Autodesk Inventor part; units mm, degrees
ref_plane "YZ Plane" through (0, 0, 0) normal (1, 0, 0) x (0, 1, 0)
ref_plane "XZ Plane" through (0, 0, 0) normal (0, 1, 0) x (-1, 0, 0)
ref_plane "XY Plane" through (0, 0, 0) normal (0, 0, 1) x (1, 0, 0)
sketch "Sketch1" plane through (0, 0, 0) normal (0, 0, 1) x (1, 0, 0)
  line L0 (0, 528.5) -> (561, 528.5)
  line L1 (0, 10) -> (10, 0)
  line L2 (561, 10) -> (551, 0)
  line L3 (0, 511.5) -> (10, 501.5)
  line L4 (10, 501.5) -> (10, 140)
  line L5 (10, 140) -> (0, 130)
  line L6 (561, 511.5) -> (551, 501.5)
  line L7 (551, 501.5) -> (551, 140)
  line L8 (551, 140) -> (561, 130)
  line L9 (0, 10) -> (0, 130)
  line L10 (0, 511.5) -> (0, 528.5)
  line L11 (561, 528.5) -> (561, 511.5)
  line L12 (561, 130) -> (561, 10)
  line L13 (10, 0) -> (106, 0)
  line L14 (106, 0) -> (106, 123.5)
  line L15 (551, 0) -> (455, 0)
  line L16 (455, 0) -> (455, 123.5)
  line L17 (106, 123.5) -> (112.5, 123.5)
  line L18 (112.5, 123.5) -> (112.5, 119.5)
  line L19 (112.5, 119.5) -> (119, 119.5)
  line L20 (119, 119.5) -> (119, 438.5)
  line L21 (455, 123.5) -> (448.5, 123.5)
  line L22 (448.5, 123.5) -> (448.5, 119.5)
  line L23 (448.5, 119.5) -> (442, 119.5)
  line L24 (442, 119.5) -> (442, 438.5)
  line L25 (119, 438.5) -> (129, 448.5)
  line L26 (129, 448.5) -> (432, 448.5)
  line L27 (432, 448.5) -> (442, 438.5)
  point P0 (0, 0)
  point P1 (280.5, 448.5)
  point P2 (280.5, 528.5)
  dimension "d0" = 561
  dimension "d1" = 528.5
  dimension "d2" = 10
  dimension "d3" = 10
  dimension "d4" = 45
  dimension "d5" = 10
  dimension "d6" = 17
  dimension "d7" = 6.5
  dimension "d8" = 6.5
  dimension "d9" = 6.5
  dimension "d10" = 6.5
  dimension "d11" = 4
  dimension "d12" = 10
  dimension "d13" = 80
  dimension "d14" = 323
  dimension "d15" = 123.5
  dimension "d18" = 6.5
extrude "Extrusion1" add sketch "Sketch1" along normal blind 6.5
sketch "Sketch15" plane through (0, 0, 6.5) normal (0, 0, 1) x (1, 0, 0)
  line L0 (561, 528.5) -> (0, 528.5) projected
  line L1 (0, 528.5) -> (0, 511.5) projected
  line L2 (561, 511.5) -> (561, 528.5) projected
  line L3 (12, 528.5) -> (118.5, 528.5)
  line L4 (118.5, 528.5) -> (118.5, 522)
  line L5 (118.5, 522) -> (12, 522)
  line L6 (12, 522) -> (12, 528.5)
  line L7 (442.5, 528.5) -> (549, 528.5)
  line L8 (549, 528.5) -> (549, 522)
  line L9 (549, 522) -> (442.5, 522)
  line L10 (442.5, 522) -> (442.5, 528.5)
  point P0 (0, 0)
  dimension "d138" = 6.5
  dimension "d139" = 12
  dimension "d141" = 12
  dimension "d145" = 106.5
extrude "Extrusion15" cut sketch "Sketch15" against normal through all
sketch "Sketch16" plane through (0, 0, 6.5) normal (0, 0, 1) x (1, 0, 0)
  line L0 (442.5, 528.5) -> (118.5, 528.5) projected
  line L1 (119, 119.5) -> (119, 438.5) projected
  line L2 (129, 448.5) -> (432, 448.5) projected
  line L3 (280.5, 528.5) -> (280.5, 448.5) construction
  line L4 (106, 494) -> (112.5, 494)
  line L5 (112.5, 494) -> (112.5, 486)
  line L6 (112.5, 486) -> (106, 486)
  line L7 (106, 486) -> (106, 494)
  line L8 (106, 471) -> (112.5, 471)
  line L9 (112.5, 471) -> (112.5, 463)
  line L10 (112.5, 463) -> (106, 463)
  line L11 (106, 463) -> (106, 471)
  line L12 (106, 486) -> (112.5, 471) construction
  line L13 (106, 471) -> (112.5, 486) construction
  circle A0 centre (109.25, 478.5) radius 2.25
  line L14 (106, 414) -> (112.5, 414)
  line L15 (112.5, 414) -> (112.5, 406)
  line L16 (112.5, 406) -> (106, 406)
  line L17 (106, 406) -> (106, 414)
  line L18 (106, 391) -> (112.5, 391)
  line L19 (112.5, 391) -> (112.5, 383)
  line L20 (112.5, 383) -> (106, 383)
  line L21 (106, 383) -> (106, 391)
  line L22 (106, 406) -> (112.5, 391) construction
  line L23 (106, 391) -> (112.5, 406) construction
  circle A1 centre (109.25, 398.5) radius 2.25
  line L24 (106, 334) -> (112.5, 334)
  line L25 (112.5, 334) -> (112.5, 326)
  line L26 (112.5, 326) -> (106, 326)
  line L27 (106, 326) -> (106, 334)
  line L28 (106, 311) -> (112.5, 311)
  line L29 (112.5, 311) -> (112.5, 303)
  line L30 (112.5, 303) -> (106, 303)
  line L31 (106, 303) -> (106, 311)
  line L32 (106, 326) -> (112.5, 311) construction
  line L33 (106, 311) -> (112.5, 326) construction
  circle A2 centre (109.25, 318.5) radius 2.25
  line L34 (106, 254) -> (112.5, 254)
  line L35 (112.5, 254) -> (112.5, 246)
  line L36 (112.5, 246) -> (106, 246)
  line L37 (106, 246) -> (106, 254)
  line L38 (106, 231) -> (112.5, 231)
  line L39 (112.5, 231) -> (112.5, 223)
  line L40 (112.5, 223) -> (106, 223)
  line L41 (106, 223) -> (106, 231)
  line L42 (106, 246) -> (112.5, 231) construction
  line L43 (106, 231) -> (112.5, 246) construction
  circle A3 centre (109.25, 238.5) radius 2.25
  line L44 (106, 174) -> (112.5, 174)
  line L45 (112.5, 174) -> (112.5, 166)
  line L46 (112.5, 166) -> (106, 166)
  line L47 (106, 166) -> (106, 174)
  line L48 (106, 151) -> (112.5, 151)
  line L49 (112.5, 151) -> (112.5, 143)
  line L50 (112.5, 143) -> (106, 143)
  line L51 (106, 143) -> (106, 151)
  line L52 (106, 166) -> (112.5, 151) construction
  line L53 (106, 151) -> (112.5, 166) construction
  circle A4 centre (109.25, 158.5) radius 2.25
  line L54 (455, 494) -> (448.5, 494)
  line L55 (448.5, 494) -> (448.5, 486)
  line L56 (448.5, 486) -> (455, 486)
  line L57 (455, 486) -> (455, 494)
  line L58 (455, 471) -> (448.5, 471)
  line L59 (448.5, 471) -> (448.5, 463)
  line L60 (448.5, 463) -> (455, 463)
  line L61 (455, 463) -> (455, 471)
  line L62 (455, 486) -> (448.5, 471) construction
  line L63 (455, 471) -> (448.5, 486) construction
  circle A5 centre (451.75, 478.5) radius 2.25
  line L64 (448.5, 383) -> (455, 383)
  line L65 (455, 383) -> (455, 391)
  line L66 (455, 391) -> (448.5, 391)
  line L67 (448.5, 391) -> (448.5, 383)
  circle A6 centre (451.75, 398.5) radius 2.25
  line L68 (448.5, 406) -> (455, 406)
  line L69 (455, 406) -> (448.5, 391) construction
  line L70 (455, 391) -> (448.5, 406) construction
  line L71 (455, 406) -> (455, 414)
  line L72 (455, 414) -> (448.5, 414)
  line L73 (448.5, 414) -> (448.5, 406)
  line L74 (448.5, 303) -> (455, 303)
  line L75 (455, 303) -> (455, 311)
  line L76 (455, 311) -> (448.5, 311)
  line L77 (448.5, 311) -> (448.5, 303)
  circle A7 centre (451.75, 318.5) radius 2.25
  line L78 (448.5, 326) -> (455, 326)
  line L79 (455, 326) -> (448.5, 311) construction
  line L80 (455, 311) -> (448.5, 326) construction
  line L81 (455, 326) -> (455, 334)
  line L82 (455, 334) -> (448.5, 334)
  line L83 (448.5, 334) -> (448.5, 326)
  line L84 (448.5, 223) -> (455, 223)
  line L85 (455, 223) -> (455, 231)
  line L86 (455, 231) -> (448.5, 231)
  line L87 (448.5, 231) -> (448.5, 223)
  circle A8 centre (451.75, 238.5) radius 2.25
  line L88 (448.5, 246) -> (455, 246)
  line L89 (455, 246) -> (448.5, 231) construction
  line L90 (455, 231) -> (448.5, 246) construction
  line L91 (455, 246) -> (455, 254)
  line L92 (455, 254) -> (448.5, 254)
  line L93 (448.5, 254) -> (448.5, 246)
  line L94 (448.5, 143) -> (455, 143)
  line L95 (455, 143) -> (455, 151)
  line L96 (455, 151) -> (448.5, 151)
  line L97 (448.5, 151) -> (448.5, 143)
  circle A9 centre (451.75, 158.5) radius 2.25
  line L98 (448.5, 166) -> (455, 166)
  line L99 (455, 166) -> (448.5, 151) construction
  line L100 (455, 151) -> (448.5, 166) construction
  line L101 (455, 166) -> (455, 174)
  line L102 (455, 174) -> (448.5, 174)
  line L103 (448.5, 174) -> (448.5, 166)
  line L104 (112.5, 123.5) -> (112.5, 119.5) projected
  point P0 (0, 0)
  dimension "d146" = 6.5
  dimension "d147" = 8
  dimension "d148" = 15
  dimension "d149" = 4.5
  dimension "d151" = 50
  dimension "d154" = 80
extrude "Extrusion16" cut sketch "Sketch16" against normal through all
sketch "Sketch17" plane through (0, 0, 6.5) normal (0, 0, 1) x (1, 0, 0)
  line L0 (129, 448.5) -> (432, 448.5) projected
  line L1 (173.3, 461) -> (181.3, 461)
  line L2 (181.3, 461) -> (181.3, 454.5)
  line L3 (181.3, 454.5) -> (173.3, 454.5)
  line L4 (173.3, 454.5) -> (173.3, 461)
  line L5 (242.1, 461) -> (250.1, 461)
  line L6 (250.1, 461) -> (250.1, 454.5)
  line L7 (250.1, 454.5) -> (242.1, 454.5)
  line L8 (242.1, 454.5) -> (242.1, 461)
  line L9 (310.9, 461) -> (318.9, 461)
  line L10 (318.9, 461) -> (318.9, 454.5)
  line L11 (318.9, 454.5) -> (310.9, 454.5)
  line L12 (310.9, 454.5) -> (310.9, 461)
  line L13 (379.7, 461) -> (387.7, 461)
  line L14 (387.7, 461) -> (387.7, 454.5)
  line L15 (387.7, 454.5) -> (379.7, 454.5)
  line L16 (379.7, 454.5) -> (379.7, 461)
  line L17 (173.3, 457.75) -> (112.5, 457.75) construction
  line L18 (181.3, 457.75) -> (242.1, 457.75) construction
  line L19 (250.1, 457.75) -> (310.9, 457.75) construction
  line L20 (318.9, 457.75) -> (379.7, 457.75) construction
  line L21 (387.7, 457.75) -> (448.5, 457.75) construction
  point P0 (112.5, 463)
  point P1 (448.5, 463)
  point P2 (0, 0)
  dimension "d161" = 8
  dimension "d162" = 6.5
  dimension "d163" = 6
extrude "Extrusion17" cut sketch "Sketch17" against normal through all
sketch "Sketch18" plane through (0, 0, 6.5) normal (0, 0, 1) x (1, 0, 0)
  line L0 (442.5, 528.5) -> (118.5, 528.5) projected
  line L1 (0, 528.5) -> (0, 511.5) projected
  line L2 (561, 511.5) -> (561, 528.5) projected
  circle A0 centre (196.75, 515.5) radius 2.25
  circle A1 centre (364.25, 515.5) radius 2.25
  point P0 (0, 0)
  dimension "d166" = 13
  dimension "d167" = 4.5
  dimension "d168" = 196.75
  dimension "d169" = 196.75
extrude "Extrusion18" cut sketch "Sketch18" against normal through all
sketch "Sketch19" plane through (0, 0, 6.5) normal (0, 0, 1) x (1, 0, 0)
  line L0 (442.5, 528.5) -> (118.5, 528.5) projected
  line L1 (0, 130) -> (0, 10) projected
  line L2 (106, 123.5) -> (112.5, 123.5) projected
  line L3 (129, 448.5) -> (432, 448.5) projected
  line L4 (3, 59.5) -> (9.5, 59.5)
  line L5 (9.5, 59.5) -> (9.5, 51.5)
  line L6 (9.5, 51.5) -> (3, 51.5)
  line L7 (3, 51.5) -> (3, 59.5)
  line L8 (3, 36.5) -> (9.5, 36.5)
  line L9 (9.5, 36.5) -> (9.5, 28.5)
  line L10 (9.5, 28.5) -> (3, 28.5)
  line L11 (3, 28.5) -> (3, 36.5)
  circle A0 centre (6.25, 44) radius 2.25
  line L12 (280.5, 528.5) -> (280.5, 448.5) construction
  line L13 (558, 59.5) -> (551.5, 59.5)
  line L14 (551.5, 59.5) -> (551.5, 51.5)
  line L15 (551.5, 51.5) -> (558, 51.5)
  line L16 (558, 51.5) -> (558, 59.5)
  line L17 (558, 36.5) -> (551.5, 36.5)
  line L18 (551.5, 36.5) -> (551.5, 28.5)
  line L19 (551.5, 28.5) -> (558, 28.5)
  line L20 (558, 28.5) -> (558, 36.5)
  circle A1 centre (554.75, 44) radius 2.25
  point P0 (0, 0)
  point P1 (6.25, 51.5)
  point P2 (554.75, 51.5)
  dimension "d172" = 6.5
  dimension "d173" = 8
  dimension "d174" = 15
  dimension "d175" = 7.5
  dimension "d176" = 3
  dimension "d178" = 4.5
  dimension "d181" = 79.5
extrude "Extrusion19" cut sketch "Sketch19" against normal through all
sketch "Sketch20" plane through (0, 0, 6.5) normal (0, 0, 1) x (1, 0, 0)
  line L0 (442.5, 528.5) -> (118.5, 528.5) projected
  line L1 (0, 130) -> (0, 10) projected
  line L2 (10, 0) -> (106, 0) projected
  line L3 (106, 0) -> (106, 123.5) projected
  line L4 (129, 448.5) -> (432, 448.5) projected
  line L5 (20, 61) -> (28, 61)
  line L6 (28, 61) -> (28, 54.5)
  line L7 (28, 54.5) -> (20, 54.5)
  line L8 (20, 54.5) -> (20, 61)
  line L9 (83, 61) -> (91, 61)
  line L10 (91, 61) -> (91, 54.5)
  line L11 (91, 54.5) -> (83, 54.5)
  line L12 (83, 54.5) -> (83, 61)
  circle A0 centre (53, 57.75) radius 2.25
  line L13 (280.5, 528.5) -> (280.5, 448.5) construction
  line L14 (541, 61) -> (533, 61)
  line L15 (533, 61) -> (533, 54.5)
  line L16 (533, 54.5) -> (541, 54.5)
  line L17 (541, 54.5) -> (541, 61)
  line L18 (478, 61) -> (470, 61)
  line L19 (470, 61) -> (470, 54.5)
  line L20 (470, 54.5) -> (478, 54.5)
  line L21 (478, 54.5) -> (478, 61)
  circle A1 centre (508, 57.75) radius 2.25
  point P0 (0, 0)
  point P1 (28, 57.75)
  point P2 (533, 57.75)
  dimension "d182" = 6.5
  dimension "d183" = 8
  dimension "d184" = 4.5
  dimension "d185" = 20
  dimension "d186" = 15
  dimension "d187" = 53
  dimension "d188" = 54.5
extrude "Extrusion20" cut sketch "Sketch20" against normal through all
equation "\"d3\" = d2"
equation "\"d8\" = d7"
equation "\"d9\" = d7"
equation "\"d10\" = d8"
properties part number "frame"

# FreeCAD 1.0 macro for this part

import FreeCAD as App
import Part
import Sketcher
Q = App.Units.Quantity


def add_polygon(sketch, points):
    """Adds a closed chain of lines whose ends are joined by coincident constraints."""
    first, n = sketch.GeometryCount, len(points)
    for a, b in zip(points, points[1:] + points[:1]):
        sketch.addGeometry(Part.LineSegment(App.Vector(*a, 0), App.Vector(*b, 0)), False)
    for i in range(n):
        sketch.addConstraint(Sketcher.Constraint("Coincident", first + i, 2, first + (i + 1) % n, 1))

doc = App.newDocument("Part")
body = doc.addObject("PartDesign::Body", "Body")

# Sketch on XY plane
sketch1 = body.newObject("Sketcher::SketchObject", "Sketch")
sketch1.AttachmentSupport = (doc.getObject("XY_Plane"), [""])
sketch1.MapMode = "FlatFace"
add_polygon(sketch1, [(561, 528.5), (0, 528.5), (0, 511.5), (10, 501.5), (10, 140), (0, 130), (0, 10), (10, 0), (106, 0), (106, 123.5), (112.5, 123.5), (112.5, 119.5), (119, 119.5), (119, 438.5), (129, 448.5), (432, 448.5), (442, 438.5), (442, 119.5), (448.5, 119.5), (448.5, 123.5), (455, 123.5), (455, 0), (551, 0), (561, 10), (561, 130), (551, 140), (551, 501.5), (561, 511.5)])  # lines 0-27
sketch1.addConstraint(Sketcher.Constraint("Horizontal", 0))
sketch1.addConstraint(Sketcher.Constraint("Vertical", 1))
sketch1.addConstraint(Sketcher.Constraint("Vertical", 3))
sketch1.addConstraint(Sketcher.Constraint("Vertical", 5))
sketch1.addConstraint(Sketcher.Constraint("Horizontal", 7))
sketch1.addConstraint(Sketcher.Constraint("Vertical", 8))
sketch1.addConstraint(Sketcher.Constraint("Horizontal", 9))
sketch1.addConstraint(Sketcher.Constraint("Vertical", 10))
sketch1.addConstraint(Sketcher.Constraint("Horizontal", 11))
sketch1.addConstraint(Sketcher.Constraint("Vertical", 12))
sketch1.addConstraint(Sketcher.Constraint("Horizontal", 14))
sketch1.addConstraint(Sketcher.Constraint("Vertical", 16))
sketch1.addConstraint(Sketcher.Constraint("Horizontal", 17))
sketch1.addConstraint(Sketcher.Constraint("Vertical", 18))
sketch1.addConstraint(Sketcher.Constraint("Horizontal", 19))
sketch1.addConstraint(Sketcher.Constraint("Vertical", 20))
sketch1.addConstraint(Sketcher.Constraint("Horizontal", 21))
sketch1.addConstraint(Sketcher.Constraint("Vertical", 23))
sketch1.addConstraint(Sketcher.Constraint("Vertical", 25))
sketch1.addConstraint(Sketcher.Constraint("Vertical", 27))
sketch1.addConstraint(Sketcher.Constraint("PointOnObject", 0, 2, -2))
sketch1.addConstraint(Sketcher.Constraint("PointOnObject", 4, 2, -2))
sketch1.addConstraint(Sketcher.Constraint("PointOnObject", 6, 2, -1))
sketch1.addConstraint(Sketcher.Constraint("PointOnObject", 20, 2, -1))
sketch1.addConstraint(Sketcher.Constraint("Perpendicular", 2, 4))
sketch1.addConstraint(Sketcher.Constraint("Perpendicular", 4, 6))
sketch1.addConstraint(Sketcher.Constraint("Perpendicular", 6, 13))
sketch1.addConstraint(Sketcher.Constraint("Perpendicular", 13, 15))
sketch1.addConstraint(Sketcher.Constraint("Perpendicular", 15, 22))
sketch1.addConstraint(Sketcher.Constraint("Perpendicular", 22, 24))
sketch1.addConstraint(Sketcher.Constraint("Perpendicular", 24, 26))
sketch1.addConstraint(Sketcher.Constraint("Horizontal", 12, 2, 15, 2))
sketch1.addConstraint(Sketcher.Constraint("Horizontal", 11, 2, 16, 2))
sketch1.addConstraint(Sketcher.Constraint("Horizontal", 9, 2, 18, 2))
sketch1.addConstraint(Sketcher.Constraint("Horizontal", 5, 2, 22, 2))
sketch1.addConstraint(Sketcher.Constraint("Horizontal", 4, 2, 23, 2))
sketch1.addConstraint(Sketcher.Constraint("Horizontal", 3, 2, 24, 2))
sketch1.addConstraint(Sketcher.Constraint("Horizontal", 2, 2, 25, 2))
sketch1.addConstraint(Sketcher.Constraint("Horizontal", 1, 2, 26, 2))
sketch1.addConstraint(Sketcher.Constraint("Vertical", 3, 2, 6, 2))
sketch1.addConstraint(Sketcher.Constraint("Vertical", 21, 2, 24, 2))
sketch1.addConstraint(Sketcher.Constraint("Equal", 9, 11))
sketch1.addConstraint(Sketcher.Constraint("Equal", 11, 17))
sketch1.addConstraint(Sketcher.Constraint("Equal", 17, 19))
sketch1.addConstraint(Sketcher.Constraint("Equal", 7, 21))
sketch1.addConstraint(Sketcher.Constraint("Equal", 6, 13))
sketch1.addConstraint(Sketcher.Constraint("DistanceX", 0, 2, 0, 1, Q("561 mm")))
sketch1.addConstraint(Sketcher.Constraint("DistanceY", 1, 2, 1, 1, Q("17 mm")))
sketch1.addConstraint(Sketcher.Constraint("DistanceY", 10, 2, 10, 1, Q("4 mm")))
sketch1.addConstraint(Sketcher.Constraint("DistanceX", 9, 1, 9, 2, Q("6.5 mm")))
sketch1.addConstraint(Sketcher.Constraint("DistanceY", 8, 1, 8, 2, Q("123.5 mm")))
sketch1.addConstraint(Sketcher.Constraint("DistanceX", -1, 1, 2, 2, Q("10 mm")))
sketch1.addConstraint(Sketcher.Constraint("DistanceY", 13, 2, 0, 2, Q("80 mm")))
sketch1.addConstraint(Sketcher.Constraint("DistanceX", 12, 2, 15, 2, Q("323 mm")))
sketch1.addConstraint(Sketcher.Constraint("DistanceY", -1, 1, 0, 2, Q("528.5 mm")))
sketch1.addConstraint(Sketcher.Constraint("DistanceY", 8, 2, 4, 2, Q("6.5 mm")))
pad1 = body.newObject("PartDesign::Pad", "Pad")
pad1.Profile = sketch1
pad1.Length = 6.5

# Sketch on XY plane
sketch2 = body.newObject("Sketcher::SketchObject", "Sketch001")
sketch2.AttachmentSupport = (doc.getObject("XY_Plane"), [""])
sketch2.MapMode = "FlatFace"
sketch2.AttachmentOffset = App.Placement(App.Vector(0, 0, 6.5), App.Rotation())
add_polygon(sketch2, [(549, 522), (549, 528), (442, 528), (442, 522)])  # lines 0-3
add_polygon(sketch2, [(118, 522), (118, 528), (12, 528), (12, 522)])  # lines 4-7
sketch2.addConstraint(Sketcher.Constraint("Vertical", 0))
sketch2.addConstraint(Sketcher.Constraint("Horizontal", 1))
sketch2.addConstraint(Sketcher.Constraint("Vertical", 2))
sketch2.addConstraint(Sketcher.Constraint("Horizontal", 3))
sketch2.addConstraint(Sketcher.Constraint("Vertical", 4))
sketch2.addConstraint(Sketcher.Constraint("Horizontal", 5))
sketch2.addConstraint(Sketcher.Constraint("Vertical", 6))
sketch2.addConstraint(Sketcher.Constraint("Horizontal", 7))
sketch2.addConstraint(Sketcher.Constraint("Horizontal", 1, 2, 4, 2))
sketch2.addConstraint(Sketcher.Constraint("Horizontal", 3, 2, 6, 2))
sketch2.addConstraint(Sketcher.Constraint("Equal", 3, 5))
sketch2.addConstraint(Sketcher.Constraint("DistanceX", 1, 2, 1, 1, Q("106.5 mm")))
sketch2.addConstraint(Sketcher.Constraint("DistanceY", 0, 1, 0, 2, Q("6.5 mm")))
sketch2.addConstraint(Sketcher.Constraint("DistanceX", -1, 1, 5, 2, Q("12 mm")))
sketch2.addConstraint(Sketcher.Constraint("DistanceX", -1, 1, 0, 2, Q("549 mm")))
sketch2.addConstraint(Sketcher.Constraint("DistanceY", -1, 1, 2, 2, Q("522 mm")))
pocket1 = body.newObject("PartDesign::Pocket", "Pocket")
pocket1.Profile = sketch2
pocket1.Type = "ThroughAll"

# Sketch on XY plane
sketch3 = body.newObject("Sketcher::SketchObject", "Sketch002")
sketch3.AttachmentSupport = (doc.getObject("XY_Plane"), [""])
sketch3.MapMode = "FlatFace"
sketch3.AttachmentOffset = App.Placement(App.Vector(0, 0, 6.5), App.Rotation())
add_polygon(sketch3, [(112.5, 494), (106, 494), (106, 486), (112.5, 486)])  # lines 0-3
add_polygon(sketch3, [(112.5, 471), (106, 471), (106, 463), (112.5, 463)])  # lines 4-7
sketch3.addGeometry(Part.Circle(App.Vector(109.2, 478.5, 0), App.Vector(0, 0, 1), 2.2), False)  # 8
add_polygon(sketch3, [(112.5, 414), (106, 414), (106, 406), (112.5, 406)])  # lines 9-12
add_polygon(sketch3, [(112.5, 391), (106, 391), (106, 383), (112.5, 383)])  # lines 13-16
sketch3.addGeometry(Part.Circle(App.Vector(109.2, 398.5, 0), App.Vector(0, 0, 1), 2.2), False)  # 17
add_polygon(sketch3, [(112.5, 334), (106, 334), (106, 326), (112.5, 326)])  # lines 18-21
add_polygon(sketch3, [(112.5, 311), (106, 311), (106, 303), (112.5, 303)])  # lines 22-25
sketch3.addGeometry(Part.Circle(App.Vector(109.2, 318.5, 0), App.Vector(0, 0, 1), 2.2), False)  # 26
add_polygon(sketch3, [(112.5, 254), (106, 254), (106, 246), (112.5, 246)])  # lines 27-30
add_polygon(sketch3, [(112.5, 231), (106, 231), (106, 223), (112.5, 223)])  # lines 31-34
sketch3.addGeometry(Part.Circle(App.Vector(109.2, 238.5, 0), App.Vector(0, 0, 1), 2.2), False)  # 35
add_polygon(sketch3, [(112.5, 174), (106, 174), (106, 166), (112.5, 166)])  # lines 36-39
add_polygon(sketch3, [(112.5, 151), (106, 151), (106, 143), (112.5, 143)])  # lines 40-43
sketch3.addGeometry(Part.Circle(App.Vector(109.2, 158.5, 0), App.Vector(0, 0, 1), 2.2), False)  # 44
add_polygon(sketch3, [(455, 486), (455, 494), (448.5, 494), (448.5, 486)])  # lines 45-48
add_polygon(sketch3, [(455, 463), (455, 471), (448.5, 471), (448.5, 463)])  # lines 49-52
sketch3.addGeometry(Part.Circle(App.Vector(451.8, 478.5, 0), App.Vector(0, 0, 1), 2.2), False)  # 53
add_polygon(sketch3, [(448.5, 391), (448.5, 383), (455, 383), (455, 391)])  # lines 54-57
sketch3.addGeometry(Part.Circle(App.Vector(451.8, 398.5, 0), App.Vector(0, 0, 1), 2.2), False)  # 58
add_polygon(sketch3, [(448.5, 414), (448.5, 406), (455, 406), (455, 414)])  # lines 59-62
add_polygon(sketch3, [(448.5, 311), (448.5, 303), (455, 303), (455, 311)])  # lines 63-66
sketch3.addGeometry(Part.Circle(App.Vector(451.8, 318.5, 0), App.Vector(0, 0, 1), 2.2), False)  # 67
add_polygon(sketch3, [(448.5, 334), (448.5, 326), (455, 326), (455, 334)])  # lines 68-71
add_polygon(sketch3, [(448.5, 231), (448.5, 223), (455, 223), (455, 231)])  # lines 72-75
sketch3.addGeometry(Part.Circle(App.Vector(451.8, 238.5, 0), App.Vector(0, 0, 1), 2.2), False)  # 76
add_polygon(sketch3, [(448.5, 254), (448.5, 246), (455, 246), (455, 254)])  # lines 77-80
add_polygon(sketch3, [(448.5, 151), (448.5, 143), (455, 143), (455, 151)])  # lines 81-84
sketch3.addGeometry(Part.Circle(App.Vector(451.8, 158.5, 0), App.Vector(0, 0, 1), 2.2), False)  # 85
add_polygon(sketch3, [(448.5, 174), (448.5, 166), (455, 166), (455, 174)])  # lines 86-89
sketch3.addConstraint(Sketcher.Constraint("Horizontal", 0))
sketch3.addConstraint(Sketcher.Constraint("Vertical", 1))
sketch3.addConstraint(Sketcher.Constraint("Horizontal", 2))
sketch3.addConstraint(Sketcher.Constraint("Vertical", 3))
sketch3.addConstraint(Sketcher.Constraint("Horizontal", 4))
sketch3.addConstraint(Sketcher.Constraint("Vertical", 5))
sketch3.addConstraint(Sketcher.Constraint("Horizontal", 6))
sketch3.addConstraint(Sketcher.Constraint("Vertical", 7))
sketch3.addConstraint(Sketcher.Constraint("Horizontal", 9))
sketch3.addConstraint(Sketcher.Constraint("Vertical", 10))
sketch3.addConstraint(Sketcher.Constraint("Horizontal", 11))
sketch3.addConstraint(Sketcher.Constraint("Vertical", 12))
sketch3.addConstraint(Sketcher.Constraint("Horizontal", 13))
sketch3.addConstraint(Sketcher.Constraint("Vertical", 14))
sketch3.addConstraint(Sketcher.Constraint("Horizontal", 15))
sketch3.addConstraint(Sketcher.Constraint("Vertical", 16))
sketch3.addConstraint(Sketcher.Constraint("Horizontal", 18))
sketch3.addConstraint(Sketcher.Constraint("Vertical", 19))
sketch3.addConstraint(Sketcher.Constraint("Horizontal", 20))
sketch3.addConstraint(Sketcher.Constraint("Vertical", 21))
sketch3.addConstraint(Sketcher.Constraint("Horizontal", 22))
sketch3.addConstraint(Sketcher.Constraint("Vertical", 23))
sketch3.addConstraint(Sketcher.Constraint("Horizontal", 24))
sketch3.addConstraint(Sketcher.Constraint("Vertical", 25))
sketch3.addConstraint(Sketcher.Constraint("Horizontal", 27))
sketch3.addConstraint(Sketcher.Constraint("Vertical", 28))
sketch3.addConstraint(Sketcher.Constraint("Horizontal", 29))
sketch3.addConstraint(Sketcher.Constraint("Vertical", 30))
sketch3.addConstraint(Sketcher.Constraint("Horizontal", 31))
sketch3.addConstraint(Sketcher.Constraint("Vertical", 32))
sketch3.addConstraint(Sketcher.Constraint("Horizontal", 33))
sketch3.addConstraint(Sketcher.Constraint("Vertical", 34))
sketch3.addConstraint(Sketcher.Constraint("Horizontal", 36))
sketch3.addConstraint(Sketcher.Constraint("Vertical", 37))
sketch3.addConstraint(Sketcher.Constraint("Horizontal", 38))
sketch3.addConstraint(Sketcher.Constraint("Vertical", 39))
sketch3.addConstraint(Sketcher.Constraint("Horizontal", 40))
sketch3.addConstraint(Sketcher.Constraint("Vertical", 41))
sketch3.addConstraint(Sketcher.Constraint("Horizontal", 42))
sketch3.addConstraint(Sketcher.Constraint("Vertical", 43))
sketch3.addConstraint(Sketcher.Constraint("Vertical", 45))
sketch3.addConstraint(Sketcher.Constraint("Horizontal", 46))
sketch3.addConstraint(Sketcher.Constraint("Vertical", 47))
sketch3.addConstraint(Sketcher.Constraint("Horizontal", 48))
sketch3.addConstraint(Sketcher.Constraint("Vertical", 49))
sketch3.addConstraint(Sketcher.Constraint("Horizontal", 50))
sketch3.addConstraint(Sketcher.Constraint("Vertical", 51))
sketch3.addConstraint(Sketcher.Constraint("Horizontal", 52))
sketch3.addConstraint(Sketcher.Constraint("Vertical", 54))
sketch3.addConstraint(Sketcher.Constraint("Horizontal", 55))
sketch3.addConstraint(Sketcher.Constraint("Vertical", 56))
sketch3.addConstraint(Sketcher.Constraint("Horizontal", 57))
sketch3.addConstraint(Sketcher.Constraint("Vertical", 59))
sketch3.addConstraint(Sketcher.Constraint("Horizontal", 60))
sketch3.addConstraint(Sketcher.Constraint("Vertical", 61))
sketch3.addConstraint(Sketcher.Constraint("Horizontal", 62))
sketch3.addConstraint(Sketcher.Constraint("Vertical", 63))
sketch3.addConstraint(Sketcher.Constraint("Horizontal", 64))
sketch3.addConstraint(Sketcher.Constraint("Vertical", 65))
sketch3.addConstraint(Sketcher.Constraint("Horizontal", 66))
sketch3.addConstraint(Sketcher.Constraint("Vertical", 68))
sketch3.addConstraint(Sketcher.Constraint("Horizontal", 69))
sketch3.addConstraint(Sketcher.Constraint("Vertical", 70))
sketch3.addConstraint(Sketcher.Constraint("Horizontal", 71))
sketch3.addConstraint(Sketcher.Constraint("Vertical", 72))
sketch3.addConstraint(Sketcher.Constraint("Horizontal", 73))
sketch3.addConstraint(Sketcher.Constraint("Vertical", 74))
sketch3.addConstraint(Sketcher.Constraint("Horizontal", 75))
sketch3.addConstraint(Sketcher.Constraint("Vertical", 77))
sketch3.addConstraint(Sketcher.Constraint("Horizontal", 78))
sketch3.addConstraint(Sketcher.Constraint("Vertical", 79))
sketch3.addConstraint(Sketcher.Constraint("Horizontal", 80))
sketch3.addConstraint(Sketcher.Constraint("Vertical", 81))
sketch3.addConstraint(Sketcher.Constraint("Horizontal", 82))
sketch3.addConstraint(Sketcher.Constraint("Vertical", 83))
sketch3.addConstraint(Sketcher.Constraint("Horizontal", 84))
sketch3.addConstraint(Sketcher.Constraint("Vertical", 86))
sketch3.addConstraint(Sketcher.Constraint("Horizontal", 87))
sketch3.addConstraint(Sketcher.Constraint("Vertical", 88))
sketch3.addConstraint(Sketcher.Constraint("Horizontal", 89))
sketch3.addConstraint(Sketcher.Constraint("Equal", 8, 17))
sketch3.addConstraint(Sketcher.Constraint("Equal", 17, 26))
sketch3.addConstraint(Sketcher.Constraint("Equal", 26, 35))
sketch3.addConstraint(Sketcher.Constraint("Equal", 35, 44))
sketch3.addConstraint(Sketcher.Constraint("Equal", 44, 53))
sketch3.addConstraint(Sketcher.Constraint("Equal", 53, 58))
sketch3.addConstraint(Sketcher.Constraint("Equal", 58, 67))
sketch3.addConstraint(Sketcher.Constraint("Equal", 67, 76))
sketch3.addConstraint(Sketcher.Constraint("Equal", 76, 85))
sketch3.addConstraint(Sketcher.Constraint("Horizontal", 8, 3, 53, 3))
sketch3.addConstraint(Sketcher.Constraint("Horizontal", 17, 3, 58, 3))
sketch3.addConstraint(Sketcher.Constraint("Horizontal", 26, 3, 67, 3))
sketch3.addConstraint(Sketcher.Constraint("Horizontal", 35, 3, 76, 3))
sketch3.addConstraint(Sketcher.Constraint("Horizontal", 44, 3, 85, 3))
sketch3.addConstraint(Sketcher.Constraint("Horizontal", 3, 2, 45, 2))
sketch3.addConstraint(Sketcher.Constraint("Horizontal", 2, 2, 47, 2))
sketch3.addConstraint(Sketcher.Constraint("Horizontal", 7, 2, 49, 2))
sketch3.addConstraint(Sketcher.Constraint("Horizontal", 6, 2, 51, 2))
sketch3.addConstraint(Sketcher.Constraint("Horizontal", 15, 2, 54, 2))
sketch3.addConstraint(Sketcher.Constraint("Horizontal", 16, 2, 56, 2))
sketch3.addConstraint(Sketcher.Constraint("Horizontal", 11, 2, 59, 2))
sketch3.addConstraint(Sketcher.Constraint("Horizontal", 12, 2, 61, 2))
sketch3.addConstraint(Sketcher.Constraint("Horizontal", 24, 2, 63, 2))
sketch3.addConstraint(Sketcher.Constraint("Horizontal", 25, 2, 65, 2))
sketch3.addConstraint(Sketcher.Constraint("Horizontal", 20, 2, 68, 2))
sketch3.addConstraint(Sketcher.Constraint("Horizontal", 21, 2, 70, 2))
sketch3.addConstraint(Sketcher.Constraint("Horizontal", 33, 2, 72, 2))
sketch3.addConstraint(Sketcher.Constraint("Horizontal", 34, 2, 74, 2))
sketch3.addConstraint(Sketcher.Constraint("Horizontal", 29, 2, 77, 2))
sketch3.addConstraint(Sketcher.Constraint("Horizontal", 30, 2, 79, 2))
sketch3.addConstraint(Sketcher.Constraint("Horizontal", 42, 2, 81, 2))
sketch3.addConstraint(Sketcher.Constraint("Horizontal", 43, 2, 83, 2))
sketch3.addConstraint(Sketcher.Constraint("Horizontal", 38, 2, 86, 2))
sketch3.addConstraint(Sketcher.Constraint("Horizontal", 39, 2, 88, 2))
sketch3.addConstraint(Sketcher.Constraint("Vertical", 8, 3, 17, 3))
sketch3.addConstraint(Sketcher.Constraint("Vertical", 17, 3, 26, 3))
sketch3.addConstraint(Sketcher.Constraint("Vertical", 26, 3, 35, 3))
sketch3.addConstraint(Sketcher.Constraint("Vertical", 35, 3, 44, 3))
sketch3.addConstraint(Sketcher.Constraint("Vertical", 53, 3, 58, 3))
sketch3.addConstraint(Sketcher.Constraint("Vertical", 58, 3, 67, 3))
sketch3.addConstraint(Sketcher.Constraint("Vertical", 67, 3, 76, 3))
sketch3.addConstraint(Sketcher.Constraint("Vertical", 76, 3, 85, 3))
sketch3.addConstraint(Sketcher.Constraint("Vertical", 1, 2, 4, 2))
sketch3.addConstraint(Sketcher.Constraint("Vertical", 3, 2, 6, 2))
sketch3.addConstraint(Sketcher.Constraint("Vertical", 5, 2, 9, 2))
sketch3.addConstraint(Sketcher.Constraint("Vertical", 7, 2, 11, 2))
sketch3.addConstraint(Sketcher.Constraint("Vertical", 10, 2, 13, 2))
sketch3.addConstraint(Sketcher.Constraint("Vertical", 12, 2, 15, 2))
sketch3.addConstraint(Sketcher.Constraint("Vertical", 14, 2, 18, 2))
sketch3.addConstraint(Sketcher.Constraint("Vertical", 16, 2, 20, 2))
sketch3.addConstraint(Sketcher.Constraint("Vertical", 19, 2, 22, 2))
sketch3.addConstraint(Sketcher.Constraint("Vertical", 21, 2, 24, 2))
sketch3.addConstraint(Sketcher.Constraint("Vertical", 23, 2, 27, 2))
sketch3.addConstraint(Sketcher.Constraint("Vertical", 25, 2, 29, 2))
sketch3.addConstraint(Sketcher.Constraint("Vertical", 28, 2, 31, 2))
sketch3.addConstraint(Sketcher.Constraint("Vertical", 30, 2, 33, 2))
sketch3.addConstraint(Sketcher.Constraint("Vertical", 32, 2, 36, 2))
sketch3.addConstraint(Sketcher.Constraint("Vertical", 34, 2, 38, 2))
sketch3.addConstraint(Sketcher.Constraint("Vertical", 37, 2, 40, 2))
sketch3.addConstraint(Sketcher.Constraint("Vertical", 39, 2, 42, 2))
sketch3.addConstraint(Sketcher.Constraint("Vertical", 48, 2, 49, 2))
sketch3.addConstraint(Sketcher.Constraint("Vertical", 47, 2, 50, 2))
sketch3.addConstraint(Sketcher.Constraint("Vertical", 51, 2, 54, 2))
sketch3.addConstraint(Sketcher.Constraint("Vertical", 52, 2, 55, 2))
sketch3.addConstraint(Sketcher.Constraint("Vertical", 57, 2, 59, 2))
sketch3.addConstraint(Sketcher.Constraint("Vertical", 56, 2, 60, 2))
sketch3.addConstraint(Sketcher.Constraint("Vertical", 62, 2, 63, 2))
sketch3.addConstraint(Sketcher.Constraint("Vertical", 61, 2, 64, 2))
sketch3.addConstraint(Sketcher.Constraint("Vertical", 66, 2, 68, 2))
sketch3.addConstraint(Sketcher.Constraint("Vertical", 65, 2, 69, 2))
sketch3.addConstraint(Sketcher.Constraint("Vertical", 71, 2, 72, 2))
sketch3.addConstraint(Sketcher.Constraint("Vertical", 70, 2, 73, 2))
sketch3.addConstraint(Sketcher.Constraint("Vertical", 75, 2, 77, 2))
sketch3.addConstraint(Sketcher.Constraint("Vertical", 74, 2, 78, 2))
sketch3.addConstraint(Sketcher.Constraint("Vertical", 80, 2, 81, 2))
sketch3.addConstraint(Sketcher.Constraint("Vertical", 79, 2, 82, 2))
sketch3.addConstraint(Sketcher.Constraint("Vertical", 84, 2, 86, 2))
sketch3.addConstraint(Sketcher.Constraint("Vertical", 83, 2, 87, 2))
sketch3.addConstraint(Sketcher.Constraint("Equal", 42, 46))
sketch3.addConstraint(Sketcher.Constraint("Equal", 3, 5))
sketch3.addConstraint(Sketcher.Constraint("Equal", 7, 10))
sketch3.addConstraint(Sketcher.Constraint("Equal", 12, 14))
sketch3.addConstraint(Sketcher.Constraint("Equal", 16, 19))
sketch3.addConstraint(Sketcher.Constraint("Equal", 21, 23))
sketch3.addConstraint(Sketcher.Constraint("Equal", 25, 28))
sketch3.addConstraint(Sketcher.Constraint("Equal", 30, 32))
sketch3.addConstraint(Sketcher.Constraint("Equal", 34, 37))
sketch3.addConstraint(Sketcher.Constraint("Equal", 39, 41))
sketch3.addConstraint(Sketcher.Constraint("Diameter", 8, Q("4.5 mm")))
sketch3.addConstraint(Sketcher.Constraint("DistanceY", 1, 2, 1, 1, Q("8 mm")))
sketch3.addConstraint(Sketcher.Constraint("DistanceX", 0, 2, 0, 1, Q("6.5 mm")))
sketch3.addConstraint(Sketcher.Constraint("DistanceX", -1, 1, 0, 2, Q("106 mm")))
sketch3.addConstraint(Sketcher.Constraint("DistanceY", -1, 1, 0, 2, Q("494 mm")))
sketch3.addConstraint(Sketcher.Constraint("DistanceY", -1, 1, 4, 2, Q("471 mm")))
sketch3.addConstraint(Sketcher.Constraint("DistanceY", -1, 1, 9, 2, Q("414 mm")))
sketch3.addConstraint(Sketcher.Constraint("DistanceY", -1, 1, 13, 2, Q("391 mm")))
sketch3.addConstraint(Sketcher.Constraint("DistanceY", -1, 1, 18, 2, Q("334 mm")))
sketch3.addConstraint(Sketcher.Constraint("DistanceY", -1, 1, 22, 2, Q("311 mm")))
sketch3.addConstraint(Sketcher.Constraint("DistanceY", -1, 1, 27, 2, Q("254 mm")))
sketch3.addConstraint(Sketcher.Constraint("DistanceY", -1, 1, 31, 2, Q("231 mm")))
sketch3.addConstraint(Sketcher.Constraint("DistanceY", -1, 1, 36, 2, Q("174 mm")))
sketch3.addConstraint(Sketcher.Constraint("DistanceY", -1, 1, 40, 2, Q("151 mm")))
sketch3.addConstraint(Sketcher.Constraint("DistanceX", -1, 1, 45, 2, Q("455 mm")))
sketch3.addConstraint(Sketcher.Constraint("DistanceY", -1, 1, 8, 3, Q("478.5 mm")))
sketch3.addConstraint(Sketcher.Constraint("DistanceY", -1, 1, 17, 3, Q("398.5 mm")))
sketch3.addConstraint(Sketcher.Constraint("DistanceY", -1, 1, 26, 3, Q("318.5 mm")))
sketch3.addConstraint(Sketcher.Constraint("DistanceY", -1, 1, 35, 3, Q("238.5 mm")))
sketch3.addConstraint(Sketcher.Constraint("DistanceY", -1, 1, 44, 3, Q("158.5 mm")))
sketch3.addConstraint(Sketcher.Constraint("DistanceX", -1, 1, 8, 3, Q("109.25 mm")))
sketch3.addConstraint(Sketcher.Constraint("DistanceX", -1, 1, 53, 3, Q("451.75 mm")))
pocket2 = body.newObject("PartDesign::Pocket", "Pocket001")
pocket2.Profile = sketch3
pocket2.Type = "ThroughAll"

# Sketch on XY plane
sketch4 = body.newObject("Sketcher::SketchObject", "Sketch003")
sketch4.AttachmentSupport = (doc.getObject("XY_Plane"), [""])
sketch4.MapMode = "FlatFace"
sketch4.AttachmentOffset = App.Placement(App.Vector(0, 0, 6.5), App.Rotation())
add_polygon(sketch4, [(181, 461), (173, 461), (173, 454), (181, 454)])  # lines 0-3
add_polygon(sketch4, [(250, 461), (242, 461), (242, 454), (250, 454)])  # lines 4-7
add_polygon(sketch4, [(319, 461), (311, 461), (311, 454), (319, 454)])  # lines 8-11
add_polygon(sketch4, [(388, 461), (380, 461), (380, 454), (388, 454)])  # lines 12-15
sketch4.addConstraint(Sketcher.Constraint("Horizontal", 0))
sketch4.addConstraint(Sketcher.Constraint("Vertical", 1))
sketch4.addConstraint(Sketcher.Constraint("Horizontal", 2))
sketch4.addConstraint(Sketcher.Constraint("Vertical", 3))
sketch4.addConstraint(Sketcher.Constraint("Horizontal", 4))
sketch4.addConstraint(Sketcher.Constraint("Vertical", 5))
sketch4.addConstraint(Sketcher.Constraint("Horizontal", 6))
sketch4.addConstraint(Sketcher.Constraint("Vertical", 7))
sketch4.addConstraint(Sketcher.Constraint("Horizontal", 8))
sketch4.addConstraint(Sketcher.Constraint("Vertical", 9))
sketch4.addConstraint(Sketcher.Constraint("Horizontal", 10))
sketch4.addConstraint(Sketcher.Constraint("Vertical", 11))
sketch4.addConstraint(Sketcher.Constraint("Horizontal", 12))
sketch4.addConstraint(Sketcher.Constraint("Vertical", 13))
sketch4.addConstraint(Sketcher.Constraint("Horizontal", 14))
sketch4.addConstraint(Sketcher.Constraint("Vertical", 15))
sketch4.addConstraint(Sketcher.Constraint("Horizontal", 3, 2, 4, 2))
sketch4.addConstraint(Sketcher.Constraint("Horizontal", 2, 2, 5, 2))
sketch4.addConstraint(Sketcher.Constraint("Horizontal", 7, 2, 8, 2))
sketch4.addConstraint(Sketcher.Constraint("Horizontal", 6, 2, 9, 2))
sketch4.addConstraint(Sketcher.Constraint("Horizontal", 11, 2, 12, 2))
sketch4.addConstraint(Sketcher.Constraint("Horizontal", 10, 2, 13, 2))
sketch4.addConstraint(Sketcher.Constraint("Equal", 2, 4))
sketch4.addConstraint(Sketcher.Constraint("Equal", 6, 8))
sketch4.addConstraint(Sketcher.Constraint("Equal", 10, 12))
sketch4.addConstraint(Sketcher.Constraint("DistanceX", 0, 2, 0, 1, Q("8 mm")))
sketch4.addConstraint(Sketcher.Constraint("DistanceY", 1, 2, 1, 1, Q("6.5 mm")))
sketch4.addConstraint(Sketcher.Constraint("DistanceY", -1, 1, 0, 2, Q("461 mm")))
sketch4.addConstraint(Sketcher.Constraint("DistanceX", -1, 1, 0, 2, Q("173.3 mm")))
sketch4.addConstraint(Sketcher.Constraint("DistanceX", -1, 1, 4, 2, Q("242.1 mm")))
sketch4.addConstraint(Sketcher.Constraint("DistanceX", -1, 1, 8, 2, Q("310.9 mm")))
sketch4.addConstraint(Sketcher.Constraint("DistanceX", -1, 1, 12, 2, Q("379.7 mm")))
pocket3 = body.newObject("PartDesign::Pocket", "Pocket002")
pocket3.Profile = sketch4
pocket3.Type = "ThroughAll"

# Sketch on XY plane
sketch5 = body.newObject("Sketcher::SketchObject", "Sketch004")
sketch5.AttachmentSupport = (doc.getObject("XY_Plane"), [""])
sketch5.MapMode = "FlatFace"
sketch5.AttachmentOffset = App.Placement(App.Vector(0, 0, 6.5), App.Rotation())
sketch5.addGeometry(Part.Circle(App.Vector(196.8, 515.5, 0), App.Vector(0, 0, 1), 2.2), False)
sketch5.addGeometry(Part.Circle(App.Vector(364.2, 515.5, 0), App.Vector(0, 0, 1), 2.2), False)
sketch5.addConstraint(Sketcher.Constraint("Equal", 0, 1))
sketch5.addConstraint(Sketcher.Constraint("Horizontal", 0, 3, 1, 3))
sketch5.addConstraint(Sketcher.Constraint("Diameter", 0, Q("4.5 mm")))
sketch5.addConstraint(Sketcher.Constraint("DistanceX", -1, 1, 0, 3, Q("196.75 mm")))
sketch5.addConstraint(Sketcher.Constraint("DistanceY", -1, 1, 0, 3, Q("515.5 mm")))
sketch5.addConstraint(Sketcher.Constraint("DistanceX", 0, 3, 1, 3, Q("167.5 mm")))
pocket4 = body.newObject("PartDesign::Pocket", "Pocket003")
pocket4.Profile = sketch5
pocket4.Type = "ThroughAll"

# Sketch on XY plane
sketch6 = body.newObject("Sketcher::SketchObject", "Sketch005")
sketch6.AttachmentSupport = (doc.getObject("XY_Plane"), [""])
sketch6.MapMode = "FlatFace"
sketch6.AttachmentOffset = App.Placement(App.Vector(0, 0, 6.5), App.Rotation())
add_polygon(sketch6, [(9.5, 59.5), (3, 59.5), (3, 51.5), (9.5, 51.5)])  # lines 0-3
add_polygon(sketch6, [(9.5, 36.5), (3, 36.5), (3, 28.5), (9.5, 28.5)])  # lines 4-7
sketch6.addGeometry(Part.Circle(App.Vector(6.2, 44, 0), App.Vector(0, 0, 1), 2.2), False)  # 8
add_polygon(sketch6, [(558, 51.5), (558, 59.5), (551.5, 59.5), (551.5, 51.5)])  # lines 9-12
add_polygon(sketch6, [(558, 28.5), (558, 36.5), (551.5, 36.5), (551.5, 28.5)])  # lines 13-16
sketch6.addGeometry(Part.Circle(App.Vector(554.8, 44, 0), App.Vector(0, 0, 1), 2.2), False)  # 17
sketch6.addConstraint(Sketcher.Constraint("Horizontal", 0))
sketch6.addConstraint(Sketcher.Constraint("Vertical", 1))
sketch6.addConstraint(Sketcher.Constraint("Horizontal", 2))
sketch6.addConstraint(Sketcher.Constraint("Vertical", 3))
sketch6.addConstraint(Sketcher.Constraint("Horizontal", 4))
sketch6.addConstraint(Sketcher.Constraint("Vertical", 5))
sketch6.addConstraint(Sketcher.Constraint("Horizontal", 6))
sketch6.addConstraint(Sketcher.Constraint("Vertical", 7))
sketch6.addConstraint(Sketcher.Constraint("Vertical", 9))
sketch6.addConstraint(Sketcher.Constraint("Horizontal", 10))
sketch6.addConstraint(Sketcher.Constraint("Vertical", 11))
sketch6.addConstraint(Sketcher.Constraint("Horizontal", 12))
sketch6.addConstraint(Sketcher.Constraint("Vertical", 13))
sketch6.addConstraint(Sketcher.Constraint("Horizontal", 14))
sketch6.addConstraint(Sketcher.Constraint("Vertical", 15))
sketch6.addConstraint(Sketcher.Constraint("Horizontal", 16))
sketch6.addConstraint(Sketcher.Constraint("Equal", 8, 17))
sketch6.addConstraint(Sketcher.Constraint("Horizontal", 8, 3, 17, 3))
sketch6.addConstraint(Sketcher.Constraint("Horizontal", 3, 2, 9, 2))
sketch6.addConstraint(Sketcher.Constraint("Horizontal", 2, 2, 11, 2))
sketch6.addConstraint(Sketcher.Constraint("Horizontal", 7, 2, 13, 2))
sketch6.addConstraint(Sketcher.Constraint("Horizontal", 6, 2, 15, 2))
sketch6.addConstraint(Sketcher.Constraint("Vertical", 1, 2, 4, 2))
sketch6.addConstraint(Sketcher.Constraint("Vertical", 3, 2, 6, 2))
sketch6.addConstraint(Sketcher.Constraint("Vertical", 12, 2, 13, 2))
sketch6.addConstraint(Sketcher.Constraint("Vertical", 11, 2, 14, 2))
sketch6.addConstraint(Sketcher.Constraint("Equal", 6, 10))
sketch6.addConstraint(Sketcher.Constraint("Equal", 3, 5))
sketch6.addConstraint(Sketcher.Constraint("Diameter", 8, Q("4.5 mm")))
sketch6.addConstraint(Sketcher.Constraint("DistanceY", 1, 2, 1, 1, Q("8 mm")))
sketch6.addConstraint(Sketcher.Constraint("DistanceX", 0, 2, 0, 1, Q("6.5 mm")))
sketch6.addConstraint(Sketcher.Constraint("DistanceX", -1, 1, 0, 2, Q("3 mm")))
sketch6.addConstraint(Sketcher.Constraint("DistanceY", 4, 2, 1, 2, Q("15 mm")))
sketch6.addConstraint(Sketcher.Constraint("DistanceY", 8, 3, 1, 2, Q("7.5 mm")))
sketch6.addConstraint(Sketcher.Constraint("DistanceY", -1, 1, 8, 3, Q("44 mm")))
sketch6.addConstraint(Sketcher.Constraint("DistanceX", -1, 1, 9, 2, Q("558 mm")))
sketch6.addConstraint(Sketcher.Constraint("DistanceX", 8, 3, 17, 3, Q("548.5 mm")))
sketch6.addConstraint(Sketcher.Constraint("DistanceX", -1, 1, 8, 3, Q("6.25 mm")))
pocket5 = body.newObject("PartDesign::Pocket", "Pocket004")
pocket5.Profile = sketch6
pocket5.Type = "ThroughAll"

# Sketch on XY plane
sketch7 = body.newObject("Sketcher::SketchObject", "Sketch006")
sketch7.AttachmentSupport = (doc.getObject("XY_Plane"), [""])
sketch7.MapMode = "FlatFace"
sketch7.AttachmentOffset = App.Placement(App.Vector(0, 0, 6.5), App.Rotation())
add_polygon(sketch7, [(28, 61), (20, 61), (20, 54.5), (28, 54.5)])  # lines 0-3
add_polygon(sketch7, [(91, 61), (83, 61), (83, 54.5), (91, 54.5)])  # lines 4-7
sketch7.addGeometry(Part.Circle(App.Vector(53, 57.8, 0), App.Vector(0, 0, 1), 2.2), False)  # 8
add_polygon(sketch7, [(541, 54.5), (541, 61), (533, 61), (533, 54.5)])  # lines 9-12
add_polygon(sketch7, [(478, 54.5), (478, 61), (470, 61), (470, 54.5)])  # lines 13-16
sketch7.addGeometry(Part.Circle(App.Vector(508, 57.8, 0), App.Vector(0, 0, 1), 2.2), False)  # 17
sketch7.addConstraint(Sketcher.Constraint("Horizontal", 0))
sketch7.addConstraint(Sketcher.Constraint("Vertical", 1))
sketch7.addConstraint(Sketcher.Constraint("Horizontal", 2))
sketch7.addConstraint(Sketcher.Constraint("Vertical", 3))
sketch7.addConstraint(Sketcher.Constraint("Horizontal", 4))
sketch7.addConstraint(Sketcher.Constraint("Vertical", 5))
sketch7.addConstraint(Sketcher.Constraint("Horizontal", 6))
sketch7.addConstraint(Sketcher.Constraint("Vertical", 7))
sketch7.addConstraint(Sketcher.Constraint("Vertical", 9))
sketch7.addConstraint(Sketcher.Constraint("Horizontal", 10))
sketch7.addConstraint(Sketcher.Constraint("Vertical", 11))
sketch7.addConstraint(Sketcher.Constraint("Horizontal", 12))
sketch7.addConstraint(Sketcher.Constraint("Vertical", 13))
sketch7.addConstraint(Sketcher.Constraint("Horizontal", 14))
sketch7.addConstraint(Sketcher.Constraint("Vertical", 15))
sketch7.addConstraint(Sketcher.Constraint("Horizontal", 16))
sketch7.addConstraint(Sketcher.Constraint("Equal", 8, 17))
sketch7.addConstraint(Sketcher.Constraint("Horizontal", 8, 3, 17, 3))
sketch7.addConstraint(Sketcher.Constraint("Horizontal", 3, 2, 4, 2))
sketch7.addConstraint(Sketcher.Constraint("Horizontal", 2, 2, 5, 2))
sketch7.addConstraint(Sketcher.Constraint("Horizontal", 7, 2, 9, 2))
sketch7.addConstraint(Sketcher.Constraint("Horizontal", 6, 2, 11, 2))
sketch7.addConstraint(Sketcher.Constraint("Horizontal", 10, 2, 13, 2))
sketch7.addConstraint(Sketcher.Constraint("Horizontal", 12, 2, 15, 2))
sketch7.addConstraint(Sketcher.Constraint("Equal", 2, 4))
sketch7.addConstraint(Sketcher.Constraint("Equal", 6, 10))
sketch7.addConstraint(Sketcher.Constraint("Equal", 12, 14))
sketch7.addConstraint(Sketcher.Constraint("Diameter", 8, Q("4.5 mm")))
sketch7.addConstraint(Sketcher.Constraint("DistanceX", 0, 2, 0, 1, Q("8 mm")))
sketch7.addConstraint(Sketcher.Constraint("DistanceY", 1, 2, 1, 1, Q("6.5 mm")))
sketch7.addConstraint(Sketcher.Constraint("DistanceX", -1, 1, 8, 3, Q("53 mm")))
sketch7.addConstraint(Sketcher.Constraint("DistanceX", -1, 1, 0, 2, Q("20 mm")))
sketch7.addConstraint(Sketcher.Constraint("DistanceY", -1, 1, 1, 2, Q("54.5 mm")))
sketch7.addConstraint(Sketcher.Constraint("DistanceX", -1, 1, 17, 3, Q("508 mm")))
sketch7.addConstraint(Sketcher.Constraint("DistanceX", -1, 1, 4, 2, Q("83 mm")))
sketch7.addConstraint(Sketcher.Constraint("DistanceX", -1, 1, 9, 2, Q("541 mm")))
sketch7.addConstraint(Sketcher.Constraint("DistanceX", -1, 1, 13, 2, Q("478 mm")))
sketch7.addConstraint(Sketcher.Constraint("DistanceY", -1, 1, 8, 3, Q("57.75 mm")))
pocket6 = body.newObject("PartDesign::Pocket", "Pocket005")
pocket6.Profile = sketch7
pocket6.Type = "ThroughAll"

doc.recompute()
